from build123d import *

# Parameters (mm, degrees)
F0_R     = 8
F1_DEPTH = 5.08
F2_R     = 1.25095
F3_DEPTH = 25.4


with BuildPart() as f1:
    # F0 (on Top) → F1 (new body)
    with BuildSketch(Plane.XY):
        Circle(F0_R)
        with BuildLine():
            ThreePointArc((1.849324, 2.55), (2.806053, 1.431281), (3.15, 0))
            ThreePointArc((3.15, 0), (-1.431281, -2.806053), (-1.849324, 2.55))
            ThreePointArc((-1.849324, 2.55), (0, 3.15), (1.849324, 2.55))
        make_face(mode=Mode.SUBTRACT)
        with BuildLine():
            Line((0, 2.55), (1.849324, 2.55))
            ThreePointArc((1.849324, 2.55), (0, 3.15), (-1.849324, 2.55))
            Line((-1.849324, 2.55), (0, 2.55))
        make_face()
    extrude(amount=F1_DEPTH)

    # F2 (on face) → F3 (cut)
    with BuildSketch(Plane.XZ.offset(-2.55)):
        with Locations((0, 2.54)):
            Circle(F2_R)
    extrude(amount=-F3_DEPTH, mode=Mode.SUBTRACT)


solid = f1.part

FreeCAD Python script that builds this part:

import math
import FreeCAD as App
import Part
import Sketcher

V = App.Vector
Q = App.Units.Quantity

doc = App.newDocument("Part")
body = doc.addObject("PartDesign::Body", "Body")

# Sketch on XY plane
sketch1 = body.newObject("Sketcher::SketchObject", "Sketch")
sketch1.AttachmentSupport = (doc.getObject("XY_Plane"), [""])
sketch1.MapMode = "FlatFace"
sketch1.addGeometry([
    Part.Circle(V(0, 0, 0), V(0, 0, 1), 8),
    Part.ArcOfCircle(Part.Circle(V(0, 0, 0), V(0, 0, 1), 3.15), math.radians(125.950567), math.radians(359.999999)),
    Part.LineSegment(V(-1.849324, 2.55, 0), V(1.849324, 2.55, 0)),
    Part.ArcOfCircle(Part.Circle(V(-0.000001, -0.000001, 0), V(0, 0, 1), 3.150001), math.radians(0.000013), math.radians(54.049427)),
], False)
sketch1.addConstraint([
    Sketcher.Constraint("Coincident", 1, 1, 2, 1),
    Sketcher.Constraint("Coincident", 2, 2, 3, 2),
    Sketcher.Constraint("Tangent", 3, 1, 1, 2),
    Sketcher.Constraint("Horizontal", 2),
    Sketcher.Constraint("Coincident", 0, 3, -1, 1),
    Sketcher.Constraint("Coincident", 1, 3, -1, 1),
    Sketcher.Constraint("Equal", 1, 3),
    Sketcher.Constraint("PointOnObject", 3, 1, -1),
    Sketcher.Constraint("Diameter", 0, Q("16 mm")),
    Sketcher.Constraint("Radius", 1, Q("3.15 mm")),
    Sketcher.Constraint("DistanceY", -1, 1, 1, 1, Q("2.55 mm")),
])
pad1 = body.newObject("PartDesign::Pad", "Pad")
pad1.Profile = sketch1
pad1.Length = 5.08

# Sketch on XZ plane
sketch2 = body.newObject("Sketcher::SketchObject", "Sketch001")
sketch2.AttachmentSupport = (doc.getObject("XZ_Plane"), [""])
sketch2.MapMode = "FlatFace"
sketch2.AttachmentOffset = App.Placement(V(0, 0, -2.55), App.Rotation())
sketch2.addGeometry(Part.Circle(V(0, 2.54, 0), V(0, 0, 1), 1.25095), False)
sketch2.addConstraint([
    Sketcher.Constraint("PointOnObject", 0, 3, -2),
    Sketcher.Constraint("Diameter", 0, Q("2.5019 mm")),
    Sketcher.Constraint("DistanceY", -1, 1, 0, 3, Q("2.54 mm")),
])
pocket1 = body.newObject("PartDesign::Pocket", "Pocket")
pocket1.Profile = sketch2
pocket1.Length = 25.4

doc.recompute()
